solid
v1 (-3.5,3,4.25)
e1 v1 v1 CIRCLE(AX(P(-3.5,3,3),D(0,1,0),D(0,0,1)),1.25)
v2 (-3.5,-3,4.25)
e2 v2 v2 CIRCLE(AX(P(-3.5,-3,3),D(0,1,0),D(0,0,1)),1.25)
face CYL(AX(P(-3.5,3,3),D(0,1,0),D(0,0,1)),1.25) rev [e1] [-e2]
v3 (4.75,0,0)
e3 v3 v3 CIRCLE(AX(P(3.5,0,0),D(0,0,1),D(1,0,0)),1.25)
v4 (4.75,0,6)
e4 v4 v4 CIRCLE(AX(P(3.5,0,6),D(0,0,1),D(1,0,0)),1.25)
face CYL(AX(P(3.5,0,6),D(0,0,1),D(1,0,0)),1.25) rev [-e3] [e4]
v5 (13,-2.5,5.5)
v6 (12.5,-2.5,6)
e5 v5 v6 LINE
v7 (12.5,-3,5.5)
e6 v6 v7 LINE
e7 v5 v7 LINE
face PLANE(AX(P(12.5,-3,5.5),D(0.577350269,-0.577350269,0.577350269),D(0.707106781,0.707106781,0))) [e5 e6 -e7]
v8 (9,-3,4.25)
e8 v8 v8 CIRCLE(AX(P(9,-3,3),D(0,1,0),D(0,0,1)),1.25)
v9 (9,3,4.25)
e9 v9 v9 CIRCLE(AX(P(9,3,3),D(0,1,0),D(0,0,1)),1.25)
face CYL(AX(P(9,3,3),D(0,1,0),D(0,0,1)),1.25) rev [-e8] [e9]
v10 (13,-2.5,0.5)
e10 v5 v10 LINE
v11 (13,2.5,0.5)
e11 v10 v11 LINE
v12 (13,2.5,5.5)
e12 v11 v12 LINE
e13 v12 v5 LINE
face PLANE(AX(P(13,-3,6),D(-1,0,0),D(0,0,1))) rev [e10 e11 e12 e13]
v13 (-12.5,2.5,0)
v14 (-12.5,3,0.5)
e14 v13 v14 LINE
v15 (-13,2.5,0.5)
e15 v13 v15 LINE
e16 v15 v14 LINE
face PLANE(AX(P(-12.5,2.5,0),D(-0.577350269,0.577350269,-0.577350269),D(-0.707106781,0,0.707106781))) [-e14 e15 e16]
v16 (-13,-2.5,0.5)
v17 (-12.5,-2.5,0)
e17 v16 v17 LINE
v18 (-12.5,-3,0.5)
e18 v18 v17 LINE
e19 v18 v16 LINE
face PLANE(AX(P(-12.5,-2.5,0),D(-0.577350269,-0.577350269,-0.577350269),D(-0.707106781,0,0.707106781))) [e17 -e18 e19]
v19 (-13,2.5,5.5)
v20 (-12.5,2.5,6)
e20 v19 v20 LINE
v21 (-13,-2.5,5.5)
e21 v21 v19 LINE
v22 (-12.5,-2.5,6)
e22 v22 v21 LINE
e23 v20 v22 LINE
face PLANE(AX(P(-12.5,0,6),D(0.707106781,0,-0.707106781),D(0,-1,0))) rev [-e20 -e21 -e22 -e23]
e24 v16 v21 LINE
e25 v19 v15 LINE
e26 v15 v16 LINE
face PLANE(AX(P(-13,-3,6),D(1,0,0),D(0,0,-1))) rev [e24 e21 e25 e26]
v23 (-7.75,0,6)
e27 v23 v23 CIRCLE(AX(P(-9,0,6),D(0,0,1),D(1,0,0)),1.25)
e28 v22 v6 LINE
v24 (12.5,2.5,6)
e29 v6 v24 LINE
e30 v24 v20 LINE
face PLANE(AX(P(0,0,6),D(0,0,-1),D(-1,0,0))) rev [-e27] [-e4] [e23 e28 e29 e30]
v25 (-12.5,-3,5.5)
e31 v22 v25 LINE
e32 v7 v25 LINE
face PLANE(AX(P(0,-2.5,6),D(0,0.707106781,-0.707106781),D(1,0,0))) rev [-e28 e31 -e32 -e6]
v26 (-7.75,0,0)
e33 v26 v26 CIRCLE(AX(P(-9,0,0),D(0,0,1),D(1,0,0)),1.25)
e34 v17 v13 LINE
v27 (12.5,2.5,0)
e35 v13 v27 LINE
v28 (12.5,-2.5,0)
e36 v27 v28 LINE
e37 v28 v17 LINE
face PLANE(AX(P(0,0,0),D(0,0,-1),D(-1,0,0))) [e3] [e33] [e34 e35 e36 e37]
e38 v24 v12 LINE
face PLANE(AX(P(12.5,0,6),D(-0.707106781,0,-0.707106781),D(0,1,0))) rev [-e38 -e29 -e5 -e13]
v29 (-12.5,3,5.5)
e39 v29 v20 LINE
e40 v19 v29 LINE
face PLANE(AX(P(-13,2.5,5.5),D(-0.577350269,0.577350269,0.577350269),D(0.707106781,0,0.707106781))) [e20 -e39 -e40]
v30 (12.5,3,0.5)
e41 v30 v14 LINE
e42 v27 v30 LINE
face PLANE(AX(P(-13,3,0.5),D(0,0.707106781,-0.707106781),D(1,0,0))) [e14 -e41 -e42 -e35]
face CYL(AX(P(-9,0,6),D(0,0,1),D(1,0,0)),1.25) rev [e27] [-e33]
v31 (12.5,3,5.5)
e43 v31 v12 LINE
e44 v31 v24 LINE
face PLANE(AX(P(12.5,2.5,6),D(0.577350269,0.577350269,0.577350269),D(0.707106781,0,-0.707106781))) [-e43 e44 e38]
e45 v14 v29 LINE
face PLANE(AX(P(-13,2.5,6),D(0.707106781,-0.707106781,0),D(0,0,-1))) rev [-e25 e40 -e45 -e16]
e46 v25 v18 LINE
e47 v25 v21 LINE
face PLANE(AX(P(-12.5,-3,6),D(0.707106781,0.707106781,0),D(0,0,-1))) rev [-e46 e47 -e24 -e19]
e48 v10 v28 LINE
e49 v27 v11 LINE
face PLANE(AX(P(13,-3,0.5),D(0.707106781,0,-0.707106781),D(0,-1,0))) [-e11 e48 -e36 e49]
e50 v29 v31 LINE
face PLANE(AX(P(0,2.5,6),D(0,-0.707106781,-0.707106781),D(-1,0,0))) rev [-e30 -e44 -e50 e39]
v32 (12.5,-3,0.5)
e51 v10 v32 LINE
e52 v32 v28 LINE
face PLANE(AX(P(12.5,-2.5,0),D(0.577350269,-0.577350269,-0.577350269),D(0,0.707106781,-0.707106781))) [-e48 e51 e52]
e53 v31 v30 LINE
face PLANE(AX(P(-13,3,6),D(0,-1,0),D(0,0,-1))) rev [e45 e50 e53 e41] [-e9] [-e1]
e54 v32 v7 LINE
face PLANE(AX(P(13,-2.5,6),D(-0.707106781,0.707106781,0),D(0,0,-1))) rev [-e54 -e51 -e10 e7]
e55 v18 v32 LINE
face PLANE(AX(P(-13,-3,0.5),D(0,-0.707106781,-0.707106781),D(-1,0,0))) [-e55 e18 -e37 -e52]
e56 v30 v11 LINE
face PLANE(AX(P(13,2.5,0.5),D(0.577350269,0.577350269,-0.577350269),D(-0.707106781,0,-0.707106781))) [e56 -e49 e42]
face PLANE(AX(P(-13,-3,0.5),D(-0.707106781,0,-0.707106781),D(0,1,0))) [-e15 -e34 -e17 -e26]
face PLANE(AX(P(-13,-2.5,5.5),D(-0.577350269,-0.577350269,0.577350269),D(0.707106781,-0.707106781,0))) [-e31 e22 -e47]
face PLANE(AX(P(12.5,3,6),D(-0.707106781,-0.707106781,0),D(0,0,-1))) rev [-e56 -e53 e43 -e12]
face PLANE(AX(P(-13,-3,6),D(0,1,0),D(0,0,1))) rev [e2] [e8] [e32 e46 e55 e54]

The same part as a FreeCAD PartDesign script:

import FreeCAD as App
import Part
import Sketcher

V = App.Vector
Q = App.Units.Quantity

doc = App.newDocument("Part")
params = doc.addObject("Spreadsheet::Sheet", "Params")
for row, (alias, value) in enumerate([
    ("sketch1_width", "26 mm"),
    ("sketch1_height", "6 mm"),
    ("pad1_length", "6 mm"),
    ("chamfer_size", "0.5 mm"),
    ("sketch2_diameter", "2.5 mm"),
    ("hole_diameter", "2.5 mm"),
    ("sketch3_diameter", "2.5 mm"),
    ("hole2_diameter", "2.5 mm"),
], start=1):
    params.set(f"A{row}", alias)
    params.set(f"B{row}", "=" + value)
    params.setAlias(f"B{row}", alias)

body = doc.addObject("PartDesign::Body", "Body")

# Sketch on XY plane
sketch1 = body.newObject("Sketcher::SketchObject", "Sketch")
sketch1.AttachmentSupport = (doc.getObject("XY_Plane"), [""])
sketch1.MapMode = "FlatFace"
sketch1.addGeometry([
    Part.LineSegment(V(-13, 3, 0), V(-13, -3, 0)),
    Part.LineSegment(V(-13, -3, 0), V(13, -3, 0)),
    Part.LineSegment(V(13, -3, 0), V(13, 3, 0)),
    Part.LineSegment(V(13, 3, 0), V(-13, 3, 0)),
], False)
sketch1.addConstraint([
    Sketcher.Constraint("Coincident", 0, 2, 1, 1),
    Sketcher.Constraint("Coincident", 1, 2, 2, 1),
    Sketcher.Constraint("Coincident", 2, 2, 3, 1),
    Sketcher.Constraint("Coincident", 3, 2, 0, 1),
    Sketcher.Constraint("Vertical", 0),
    Sketcher.Constraint("Horizontal", 1),
    Sketcher.Constraint("Vertical", 2),
    Sketcher.Constraint("Horizontal", 3),
    Sketcher.Constraint("Symmetric", 0, 2, 2, 2, -1, 1),
    Sketcher.Constraint("DistanceX", 1, 1, 1, 2, Q("26 mm")),
    Sketcher.Constraint("DistanceY", 0, 2, 0, 1, Q("6 mm")),
])
sketch1.setExpression("Constraints[9]", "Params.sketch1_width")
sketch1.setExpression("Constraints[10]", "Params.sketch1_height")
pad1 = body.newObject("PartDesign::Pad", "Pad")
pad1.Profile = sketch1
pad1.setExpression("Length", "Params.pad1_length")
doc.recompute()

chamfer = body.newObject("PartDesign::Chamfer", "Chamfer")
chamfer.Base = (pad1, ["Edge1"])
chamfer.UseAllEdges = True
chamfer.setExpression("Size", "Params.chamfer_size")

# Sketch on XY plane
sketch2 = body.newObject("Sketcher::SketchObject", "Sketch001")
sketch2.AttachmentSupport = (doc.getObject("XY_Plane"), [""])
sketch2.MapMode = "FlatFace"
sketch2.AttachmentOffset = App.Placement(V(0, 0, 6), App.Rotation())
sketch2.addGeometry([
    Part.Circle(V(-9, 0, 0), V(0, 0, 1), 1.25),
    Part.Circle(V(3.5, 0, 0), V(0, 0, 1), 1.25),
], False)
sketch2.addConstraint([
    Sketcher.Constraint("Equal", 0, 1),
    Sketcher.Constraint("PointOnObject", 0, 3, -1),
    Sketcher.Constraint("PointOnObject", 1, 3, -1),
    Sketcher.Constraint("Diameter", 0, Q("2.5 mm")),
    Sketcher.Constraint("DistanceX", 0, 3, -1, 1, Q("9 mm")),
    Sketcher.Constraint("DistanceX", -1, 1, 1, 3, Q("3.5 mm")),
])
sketch2.setExpression("Constraints[3]", "Params.sketch2_diameter")
doc.recompute()
hole = body.newObject("PartDesign::Hole", "Hole")
hole.Profile = sketch2
hole.ThreadType = "None"
hole.setExpression("Diameter", "Params.hole_diameter")
hole.DepthType = "ThroughAll"

# Sketch on XZ plane
sketch3 = body.newObject("Sketcher::SketchObject", "Sketch002")
sketch3.AttachmentSupport = (doc.getObject("XZ_Plane"), [""])
sketch3.MapMode = "FlatFace"
sketch3.AttachmentOffset = App.Placement(V(0, 0, -3), App.Rotation())
sketch3.addGeometry([
    Part.Circle(V(-3.5, 3, 0), V(0, 0, 1), 1.25),
    Part.Circle(V(9, 3, 0), V(0, 0, 1), 1.25),
], False)
sketch3.addConstraint([
    Sketcher.Constraint("Equal", 0, 1),
    Sketcher.Constraint("Horizontal", 0, 3, 1, 3),
    Sketcher.Constraint("Diameter", 0, Q("2.5 mm")),
    Sketcher.Constraint("DistanceY", -1, 1, 0, 3, Q("3 mm")),
    Sketcher.Constraint("DistanceX", -1, 1, 1, 3, Q("9 mm")),
    Sketcher.Constraint("DistanceX", 0, 3, -1, 1, Q("3.5 mm")),
])
sketch3.setExpression("Constraints[2]", "Params.sketch3_diameter")
doc.recompute()
hole2 = body.newObject("PartDesign::Hole", "Hole001")
hole2.Profile = sketch3
hole2.ThreadType = "None"
hole2.setExpression("Diameter", "Params.hole2_diameter")
hole2.DepthType = "ThroughAll"
hole2.Reversed = True

doc.recompute()
